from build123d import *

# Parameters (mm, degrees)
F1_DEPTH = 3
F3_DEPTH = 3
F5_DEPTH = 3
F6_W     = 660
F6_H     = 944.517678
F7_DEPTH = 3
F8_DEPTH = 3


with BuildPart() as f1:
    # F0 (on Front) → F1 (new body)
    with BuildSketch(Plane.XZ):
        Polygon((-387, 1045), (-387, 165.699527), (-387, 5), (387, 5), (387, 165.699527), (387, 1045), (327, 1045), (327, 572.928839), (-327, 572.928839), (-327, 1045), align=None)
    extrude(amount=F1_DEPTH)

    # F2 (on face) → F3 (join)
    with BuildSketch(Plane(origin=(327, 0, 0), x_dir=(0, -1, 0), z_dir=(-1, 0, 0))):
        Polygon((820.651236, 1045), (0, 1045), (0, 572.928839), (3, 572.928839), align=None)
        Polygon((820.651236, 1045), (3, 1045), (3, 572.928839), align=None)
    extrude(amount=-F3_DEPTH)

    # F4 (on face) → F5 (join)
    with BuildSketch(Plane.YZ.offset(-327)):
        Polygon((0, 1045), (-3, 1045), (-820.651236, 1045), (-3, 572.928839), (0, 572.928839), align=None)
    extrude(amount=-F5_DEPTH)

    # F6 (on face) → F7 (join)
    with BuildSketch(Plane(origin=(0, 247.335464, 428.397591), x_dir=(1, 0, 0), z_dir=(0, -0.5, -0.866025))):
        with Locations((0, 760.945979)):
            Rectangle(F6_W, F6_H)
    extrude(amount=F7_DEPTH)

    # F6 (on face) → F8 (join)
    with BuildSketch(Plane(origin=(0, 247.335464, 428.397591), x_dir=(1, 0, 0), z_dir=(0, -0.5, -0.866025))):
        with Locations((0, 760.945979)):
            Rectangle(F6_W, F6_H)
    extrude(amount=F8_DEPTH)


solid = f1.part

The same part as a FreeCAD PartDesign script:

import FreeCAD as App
import Part
import Sketcher

V = App.Vector
Q = App.Units.Quantity


def add_polygon(sketch, points):
    """Adds a closed chain of lines whose ends are joined by coincident constraints."""
    first, n = sketch.GeometryCount, len(points)
    for a, b in zip(points, points[1:] + points[:1]):
        sketch.addGeometry(Part.LineSegment(App.Vector(*a, 0), App.Vector(*b, 0)), False)
    for i in range(n):
        sketch.addConstraint(Sketcher.Constraint("Coincident", first + i, 2, first + (i + 1) % n, 1))

doc = App.newDocument("Part")
body = doc.addObject("PartDesign::Body", "Body")

# Sketch on XZ plane
sketch1 = body.newObject("Sketcher::SketchObject", "Sketch")
sketch1.AttachmentSupport = (doc.getObject("XZ_Plane"), [""])
sketch1.MapMode = "FlatFace"
add_polygon(sketch1, [(-387, 1045), (-387, 5), (387, 5), (387, 1045), (327, 1045), (327, 573), (-327, 573), (-327, 1045)])  # lines 0-7
sketch1.addConstraint([
    Sketcher.Constraint("Vertical", 0),
    Sketcher.Constraint("Horizontal", 1),
    Sketcher.Constraint("Vertical", 2),
    Sketcher.Constraint("Horizontal", 3),
    Sketcher.Constraint("Vertical", 4),
    Sketcher.Constraint("Horizontal", 5),
    Sketcher.Constraint("Vertical", 6),
    Sketcher.Constraint("Horizontal", 7),
    Sketcher.Constraint("Symmetric", 3, 2, 6, 2, -2),
    Sketcher.Constraint("Equal", 3, 7),
    Sketcher.Constraint("DistanceX", 1, 1, 1, 2, 774.0),
    Sketcher.Constraint("DistanceX", 3, 2, 3, 1, 60.0),
    Sketcher.Constraint("DistanceY", 0, 2, 0, 1, 1040.0),
    Sketcher.Constraint("DistanceY", -1, 1, 0, 2, 5.0),
    Sketcher.Constraint("DistanceY", 4, 2, 4, 1, 472.071161),
])
pad1 = body.newObject("PartDesign::Pad", "Pad")
pad1.Profile = sketch1
pad1.Length = 3

# Sketch on YZ plane
sketch2 = body.newObject("Sketcher::SketchObject", "Sketch001")
sketch2.AttachmentSupport = (doc.getObject("YZ_Plane"), [""])
sketch2.MapMode = "FlatFace"
sketch2.AttachmentOffset = App.Placement(V(0, 0, 327), App.Rotation())
add_polygon(sketch2, [(-3, 572.9), (-820.7, 1045), (0, 1045), (0, 572.9)])  # lines 0-3
sketch2.addConstraint([
    Sketcher.Constraint("Horizontal", 1),
    Sketcher.Constraint("Vertical", 2),
    Sketcher.Constraint("Horizontal", 3),
    Sketcher.Constraint("PointOnObject", 1, 2, -2),
    Sketcher.Constraint("DistanceX", 3, 2, 3, 1, 3.0),
    Sketcher.Constraint("Angle", 0, Q("150 deg")),
    Sketcher.Constraint("DistanceY", -1, 1, 0, 2, 1045.0),
    Sketcher.Constraint("DistanceY", 2, 2, 2, 1, 472.071161),
])
pad2 = body.newObject("PartDesign::Pad", "Pad001")
pad2.Profile = sketch2
pad2.Length = 3

# Sketch on YZ plane
sketch3 = body.newObject("Sketcher::SketchObject", "Sketch002")
sketch3.AttachmentSupport = (doc.getObject("YZ_Plane"), [""])
sketch3.MapMode = "FlatFace"
sketch3.AttachmentOffset = App.Placement(V(0, 0, -327), App.Rotation())
add_polygon(sketch3, [(0, 1045), (-820.7, 1045), (-3, 572.9), (0, 572.9)])  # lines 0-3
sketch3.addConstraint([
    Sketcher.Constraint("Horizontal", 0),
    Sketcher.Constraint("Horizontal", 2),
    Sketcher.Constraint("Vertical", 3),
    Sketcher.Constraint("PointOnObject", 2, 2, -2),
    Sketcher.Constraint("DistanceX", 2, 1, 2, 2, 3.0),
    Sketcher.Constraint("Angle", 1, Q("-30 deg")),
    Sketcher.Constraint("DistanceY", -1, 1, 0, 2, 1045.0),
    Sketcher.Constraint("DistanceY", 3, 1, 3, 2, 472.071161),
])
pad3 = body.newObject("PartDesign::Pad", "Pad002")
pad3.Profile = sketch3
pad3.Length = 3
pad3.Reversed = True

# Sketch on an angled plane
sketch4 = body.newObject("Sketcher::SketchObject", "Sketch003")
sketch4.Placement = App.Placement(V(0, 247.335464, 428.397591), App.Rotation(V(1, 0, 0), V(0, -0.866025303, 0.500000175), V(0, -0.500000175, -0.866025303), "ZXY"))
add_polygon(sketch4, [(-330, 1233), (-330, 289), (330, 289), (330, 1233)])  # lines 0-3
sketch4.addConstraint([
    Sketcher.Constraint("Vertical", 0),
    Sketcher.Constraint("Horizontal", 1),
    Sketcher.Constraint("Vertical", 2),
    Sketcher.Constraint("Horizontal", 3),
    Sketcher.Constraint("DistanceX", 1, 1, 1, 2, 660.0),
    Sketcher.Constraint("DistanceX", 0, 2, -1, 1, 330.0),
    Sketcher.Constraint("DistanceY", 0, 2, 0, 1, 944.517678),
    Sketcher.Constraint("DistanceY", -1, 1, 0, 2, 288.68714),
])
pad4 = body.newObject("PartDesign::Pad", "Pad003")
pad4.Profile = sketch4
pad4.Length = 3

# Sketch on an angled plane
sketch5 = body.newObject("Sketcher::SketchObject", "Sketch004")
sketch5.Placement = App.Placement(V(0, 247.335464, 428.397591), App.Rotation(V(1, 0, 0), V(0, -0.866025303, 0.500000175), V(0, -0.500000175, -0.866025303), "ZXY"))
add_polygon(sketch5, [(-330, 1233), (-330, 289), (330, 289), (330, 1233)])  # lines 0-3
sketch5.addConstraint([
    Sketcher.Constraint("Vertical", 0),
    Sketcher.Constraint("Horizontal", 1),
    Sketcher.Constraint("Vertical", 2),
    Sketcher.Constraint("Horizontal", 3),
    Sketcher.Constraint("DistanceX", 1, 1, 1, 2, 660.0),
    Sketcher.Constraint("DistanceX", 0, 2, -1, 1, 330.0),
    Sketcher.Constraint("DistanceY", 0, 2, 0, 1, 944.517678),
    Sketcher.Constraint("DistanceY", -1, 1, 0, 2, 288.68714),
])
pad5 = body.newObject("PartDesign::Pad", "Pad004")
pad5.Profile = sketch5
pad5.Length = 3

doc.recompute()
